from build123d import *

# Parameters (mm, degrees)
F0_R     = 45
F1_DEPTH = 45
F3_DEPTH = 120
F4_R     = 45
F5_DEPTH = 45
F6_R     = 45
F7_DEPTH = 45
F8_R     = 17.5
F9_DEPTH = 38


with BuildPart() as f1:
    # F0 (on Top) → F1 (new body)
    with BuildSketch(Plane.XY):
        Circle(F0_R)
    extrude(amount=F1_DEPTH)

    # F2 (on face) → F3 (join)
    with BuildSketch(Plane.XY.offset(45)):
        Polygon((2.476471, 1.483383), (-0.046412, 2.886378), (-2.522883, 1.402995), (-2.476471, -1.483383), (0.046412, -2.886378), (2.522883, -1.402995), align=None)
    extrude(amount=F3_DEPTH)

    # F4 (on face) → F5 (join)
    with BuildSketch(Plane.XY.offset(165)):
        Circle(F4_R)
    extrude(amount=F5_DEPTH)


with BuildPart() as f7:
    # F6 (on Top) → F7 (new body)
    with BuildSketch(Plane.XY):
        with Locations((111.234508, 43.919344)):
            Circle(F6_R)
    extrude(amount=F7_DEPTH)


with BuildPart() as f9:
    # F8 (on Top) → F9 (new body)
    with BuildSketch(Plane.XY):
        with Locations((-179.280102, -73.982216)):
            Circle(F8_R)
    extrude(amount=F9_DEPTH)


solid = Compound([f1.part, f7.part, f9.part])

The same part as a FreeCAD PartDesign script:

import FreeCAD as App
import Part
import Sketcher

V = App.Vector
Q = App.Units.Quantity

doc = App.newDocument("Part")
body = doc.addObject("PartDesign::Body", "Body")

# Sketch on XY plane
sketch1 = doc.addObject("Sketcher::SketchObject", "Sketch")
body.addObject(sketch1)
sketch1.AttachmentSupport = (doc.XY_Plane, [""])
sketch1.MapMode = "FlatFace"
sketch1.addGeometry(Part.Circle(V(0, 0, 0), V(0, 0, 1), 45), False)
sketch1.addConstraint(Sketcher.Constraint("Coincident", 0, 3, -1, 1))
sketch1.addConstraint(Sketcher.Constraint("Diameter", 0, Q("90 mm")))
pad1 = doc.addObject("PartDesign::Pad", "Pad")
body.addObject(pad1)
pad1.Profile = sketch1
pad1.Length = 45

# Sketch on XY plane
sketch2 = doc.addObject("Sketcher::SketchObject", "Sketch001")
body.addObject(sketch2)
sketch2.AttachmentSupport = (doc.XY_Plane, [""])
sketch2.MapMode = "FlatFace"
sketch2.AttachmentOffset = App.Placement(V(0, 0, 45), App.Rotation())
sketch2.addGeometry(Part.LineSegment(V(2.476471, 1.483383, 0), V(-0.046412, 2.886378, 0)), False)
sketch2.addGeometry(Part.LineSegment(V(-0.046412, 2.886378, 0), V(-2.522883, 1.402995, 0)), False)
sketch2.addGeometry(Part.LineSegment(V(-2.522883, 1.402995, 0), V(-2.476471, -1.483383, 0)), False)
sketch2.addGeometry(Part.LineSegment(V(-2.476471, -1.483383, 0), V(0.046412, -2.886378, 0)), False)
sketch2.addGeometry(Part.LineSegment(V(0.046412, -2.886378, 0), V(2.522883, -1.402995, 0)), False)
sketch2.addGeometry(Part.LineSegment(V(2.522883, -1.402995, 0), V(2.476471, 1.483383, 0)), False)
sketch2.addConstraint(Sketcher.Constraint("Coincident", 0, 2, 1, 1))
sketch2.addConstraint(Sketcher.Constraint("Coincident", 1, 2, 2, 1))
sketch2.addConstraint(Sketcher.Constraint("Coincident", 2, 2, 3, 1))
sketch2.addConstraint(Sketcher.Constraint("Coincident", 3, 2, 4, 1))
sketch2.addConstraint(Sketcher.Constraint("Coincident", 4, 2, 5, 1))
sketch2.addConstraint(Sketcher.Constraint("Coincident", 5, 2, 0, 1))
sketch2.addConstraint(Sketcher.Constraint("Symmetric", 0, 2, 3, 2, -1, 1))
sketch2.addConstraint(Sketcher.Constraint("Symmetric", 1, 2, 4, 2, -1, 1))
sketch2.addConstraint(Sketcher.Constraint("Symmetric", 2, 2, 5, 2, -1, 1))
sketch2.addConstraint(Sketcher.Constraint("Equal", 0, 1))
sketch2.addConstraint(Sketcher.Constraint("Equal", 1, 2))
sketch2.addConstraint(Sketcher.Constraint("Distance", 0, Q("2.886751 mm")))
sketch2.addConstraint(Sketcher.Constraint("DistanceY", -1, 1, 0, 2, Q("2.886378 mm")))
sketch2.addConstraint(Sketcher.Constraint("DistanceX", 2, 2, -1, 1, Q("2.476471 mm")))
sketch2.addConstraint(Sketcher.Constraint("DistanceX", 1, 2, 0, 2, Q("2.476471 mm")))
pad2 = doc.addObject("PartDesign::Pad", "Pad001")
body.addObject(pad2)
pad2.Profile = sketch2
pad2.Length = 120

# Sketch on XY plane
sketch3 = doc.addObject("Sketcher::SketchObject", "Sketch002")
body.addObject(sketch3)
sketch3.AttachmentSupport = (doc.XY_Plane, [""])
sketch3.MapMode = "FlatFace"
sketch3.AttachmentOffset = App.Placement(V(0, 0, 165), App.Rotation())
sketch3.addGeometry(Part.Circle(V(0, 0, 0), V(0, 0, 1), 45), False)
sketch3.addConstraint(Sketcher.Constraint("Coincident", 0, 3, -1, 1))
sketch3.addConstraint(Sketcher.Constraint("Diameter", 0, Q("90 mm")))
pad3 = doc.addObject("PartDesign::Pad", "Pad002")
body.addObject(pad3)
pad3.Profile = sketch3
pad3.Length = 45
body2 = doc.addObject("PartDesign::Body", "Body001")

# Sketch on XY plane
sketch4 = doc.addObject("Sketcher::SketchObject", "Sketch003")
body2.addObject(sketch4)
sketch4.AttachmentSupport = (doc.getObject("XY_Plane001"), [""])
sketch4.MapMode = "FlatFace"
sketch4.addGeometry(Part.Circle(V(111.234508, 43.919344, 0), V(0, 0, 1), 45), False)
sketch4.addConstraint(Sketcher.Constraint("Diameter", 0, Q("90 mm")))
sketch4.addConstraint(Sketcher.Constraint("DistanceX", -1, 1, 0, 3, Q("111.234508 mm")))
sketch4.addConstraint(Sketcher.Constraint("DistanceY", -1, 1, 0, 3, Q("43.919344 mm")))
pad4 = doc.addObject("PartDesign::Pad", "Pad003")
body2.addObject(pad4)
pad4.Profile = sketch4
pad4.Length = 45
body3 = doc.addObject("PartDesign::Body", "Body002")

# Sketch on XY plane
sketch5 = doc.addObject("Sketcher::SketchObject", "Sketch004")
body3.addObject(sketch5)
sketch5.AttachmentSupport = (doc.getObject("XY_Plane002"), [""])
sketch5.MapMode = "FlatFace"
sketch5.addGeometry(Part.Circle(V(-179.280102, -73.982216, 0), V(0, 0, 1), 17.5), False)
sketch5.addConstraint(Sketcher.Constraint("Diameter", 0, Q("35 mm")))
sketch5.addConstraint(Sketcher.Constraint("DistanceX", 0, 3, -1, 1, Q("179.280102 mm")))
sketch5.addConstraint(Sketcher.Constraint("DistanceY", 0, 3, -1, 1, Q("73.982216 mm")))
pad5 = doc.addObject("PartDesign::Pad", "Pad004")
body3.addObject(pad5)
pad5.Profile = sketch5
pad5.Length = 38

doc.recompute()
